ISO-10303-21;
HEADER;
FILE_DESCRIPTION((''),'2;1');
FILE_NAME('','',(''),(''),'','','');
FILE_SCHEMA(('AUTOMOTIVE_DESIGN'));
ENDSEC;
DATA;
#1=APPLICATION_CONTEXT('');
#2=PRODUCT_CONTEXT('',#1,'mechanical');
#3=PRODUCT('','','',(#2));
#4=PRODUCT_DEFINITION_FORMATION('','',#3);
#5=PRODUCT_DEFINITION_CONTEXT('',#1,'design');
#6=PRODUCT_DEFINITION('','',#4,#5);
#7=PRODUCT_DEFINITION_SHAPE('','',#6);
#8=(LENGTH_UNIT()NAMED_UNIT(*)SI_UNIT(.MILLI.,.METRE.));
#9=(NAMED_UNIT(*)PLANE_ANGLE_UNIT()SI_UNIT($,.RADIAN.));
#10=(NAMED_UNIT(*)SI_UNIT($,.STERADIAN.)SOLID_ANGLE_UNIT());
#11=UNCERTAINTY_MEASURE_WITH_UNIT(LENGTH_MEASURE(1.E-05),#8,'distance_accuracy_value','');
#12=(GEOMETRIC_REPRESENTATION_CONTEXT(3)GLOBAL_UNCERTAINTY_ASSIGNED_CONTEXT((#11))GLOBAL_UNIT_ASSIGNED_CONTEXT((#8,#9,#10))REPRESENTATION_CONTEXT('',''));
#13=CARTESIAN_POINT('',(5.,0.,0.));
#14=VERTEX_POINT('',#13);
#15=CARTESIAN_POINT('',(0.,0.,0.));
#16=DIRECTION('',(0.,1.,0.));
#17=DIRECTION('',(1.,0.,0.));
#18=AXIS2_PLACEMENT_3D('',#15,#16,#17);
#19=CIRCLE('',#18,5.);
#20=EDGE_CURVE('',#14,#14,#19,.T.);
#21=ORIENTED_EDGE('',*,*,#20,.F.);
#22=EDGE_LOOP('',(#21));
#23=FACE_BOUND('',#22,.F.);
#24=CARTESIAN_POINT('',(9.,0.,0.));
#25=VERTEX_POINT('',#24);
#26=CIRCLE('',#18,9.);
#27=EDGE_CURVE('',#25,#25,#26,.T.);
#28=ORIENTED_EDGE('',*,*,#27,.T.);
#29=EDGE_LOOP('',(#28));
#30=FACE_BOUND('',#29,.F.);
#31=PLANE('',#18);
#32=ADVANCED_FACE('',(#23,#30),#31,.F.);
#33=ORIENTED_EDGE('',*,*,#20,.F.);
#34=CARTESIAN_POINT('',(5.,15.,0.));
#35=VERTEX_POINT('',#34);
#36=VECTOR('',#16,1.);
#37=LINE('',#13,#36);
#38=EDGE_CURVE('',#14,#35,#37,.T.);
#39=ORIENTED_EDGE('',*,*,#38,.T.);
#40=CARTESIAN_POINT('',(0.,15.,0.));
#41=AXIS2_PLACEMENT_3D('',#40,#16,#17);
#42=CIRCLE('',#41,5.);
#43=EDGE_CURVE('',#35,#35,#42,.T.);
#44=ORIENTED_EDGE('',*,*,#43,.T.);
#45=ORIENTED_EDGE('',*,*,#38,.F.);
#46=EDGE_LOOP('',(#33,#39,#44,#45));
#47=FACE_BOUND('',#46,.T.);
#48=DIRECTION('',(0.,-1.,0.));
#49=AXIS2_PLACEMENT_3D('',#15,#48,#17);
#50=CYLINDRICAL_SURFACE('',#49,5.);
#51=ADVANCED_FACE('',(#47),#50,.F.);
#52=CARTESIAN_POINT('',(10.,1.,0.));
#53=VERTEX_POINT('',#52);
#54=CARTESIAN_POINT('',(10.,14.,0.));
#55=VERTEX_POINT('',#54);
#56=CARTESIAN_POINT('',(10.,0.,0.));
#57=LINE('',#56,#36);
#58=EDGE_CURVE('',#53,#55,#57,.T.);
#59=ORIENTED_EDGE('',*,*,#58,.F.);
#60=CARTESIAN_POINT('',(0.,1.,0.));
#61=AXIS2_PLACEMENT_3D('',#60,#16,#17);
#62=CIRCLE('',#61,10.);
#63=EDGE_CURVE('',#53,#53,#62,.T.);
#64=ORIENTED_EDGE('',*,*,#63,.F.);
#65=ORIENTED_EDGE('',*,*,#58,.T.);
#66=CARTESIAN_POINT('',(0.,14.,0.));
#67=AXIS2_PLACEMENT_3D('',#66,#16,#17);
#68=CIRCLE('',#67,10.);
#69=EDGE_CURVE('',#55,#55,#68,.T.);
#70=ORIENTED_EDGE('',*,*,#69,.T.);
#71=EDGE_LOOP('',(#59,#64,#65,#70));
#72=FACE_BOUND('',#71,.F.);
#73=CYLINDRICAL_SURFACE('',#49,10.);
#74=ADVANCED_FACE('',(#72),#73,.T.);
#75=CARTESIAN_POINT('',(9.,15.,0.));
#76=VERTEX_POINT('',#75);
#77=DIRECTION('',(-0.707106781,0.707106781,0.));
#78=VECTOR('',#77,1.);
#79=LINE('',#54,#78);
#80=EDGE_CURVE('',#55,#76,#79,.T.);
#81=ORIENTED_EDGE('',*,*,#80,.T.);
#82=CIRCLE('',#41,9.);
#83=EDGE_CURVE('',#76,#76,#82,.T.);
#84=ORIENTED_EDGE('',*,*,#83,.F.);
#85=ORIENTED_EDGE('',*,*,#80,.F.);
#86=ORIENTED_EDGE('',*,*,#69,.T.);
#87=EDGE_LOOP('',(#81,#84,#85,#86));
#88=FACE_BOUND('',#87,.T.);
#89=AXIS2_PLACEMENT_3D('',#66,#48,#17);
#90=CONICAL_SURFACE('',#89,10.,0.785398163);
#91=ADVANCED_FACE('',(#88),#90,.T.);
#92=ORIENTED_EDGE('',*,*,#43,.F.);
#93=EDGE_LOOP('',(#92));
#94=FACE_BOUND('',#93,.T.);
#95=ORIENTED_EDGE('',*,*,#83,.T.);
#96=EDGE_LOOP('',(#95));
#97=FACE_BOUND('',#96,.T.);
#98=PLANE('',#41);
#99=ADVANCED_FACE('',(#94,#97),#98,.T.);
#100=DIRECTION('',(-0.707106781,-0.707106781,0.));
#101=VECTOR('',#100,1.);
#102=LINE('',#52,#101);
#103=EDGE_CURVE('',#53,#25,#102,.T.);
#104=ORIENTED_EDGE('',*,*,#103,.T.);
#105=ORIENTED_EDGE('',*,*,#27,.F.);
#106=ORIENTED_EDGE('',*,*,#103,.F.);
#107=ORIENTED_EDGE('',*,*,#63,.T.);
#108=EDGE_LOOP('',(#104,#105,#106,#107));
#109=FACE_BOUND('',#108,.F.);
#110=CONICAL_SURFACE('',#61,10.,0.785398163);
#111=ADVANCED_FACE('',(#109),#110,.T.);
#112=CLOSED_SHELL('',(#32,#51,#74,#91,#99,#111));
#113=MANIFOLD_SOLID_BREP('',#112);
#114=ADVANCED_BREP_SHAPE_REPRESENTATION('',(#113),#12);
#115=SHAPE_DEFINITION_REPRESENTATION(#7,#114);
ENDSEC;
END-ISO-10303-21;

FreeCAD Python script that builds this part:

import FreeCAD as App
import Part
import Sketcher


def edges_at(feature, points):
    """Names of the edges that pass closest to the given points."""
    edges = feature.Shape.Edges
    near = lambda p: min(range(len(edges)), key=lambda i: edges[i].distToShape(Part.Vertex(*p))[0])
    return sorted({f"Edge{near(p) + 1}" for p in points})

doc = App.newDocument("Part")
body = doc.addObject("PartDesign::Body", "Body")

sketch1 = body.newObject("Sketcher::SketchObject", "Sketch")
sketch1.AttachmentSupport = (doc.getObject("XZ_Plane"), [""])
sketch1.MapMode = "FlatFace"
sketch1.addGeometry(Part.Circle(App.Vector(0, 0, 0), App.Vector(0, 0, 1), 10), False)
sketch1.addGeometry(Part.Circle(App.Vector(0, 0, 0), App.Vector(0, 0, 1), 5), False)
sketch1.addConstraint(Sketcher.Constraint("Coincident", 0, 3, -1, 1))
sketch1.addConstraint(Sketcher.Constraint("Coincident", 1, 3, -1, 1))
sketch1.addConstraint(Sketcher.Constraint("Diameter", 0, 20.0))
sketch1.addConstraint(Sketcher.Constraint("Diameter", 1, 10.0))
pad1 = body.newObject("PartDesign::Pad", "Pad")
pad1.Profile = sketch1
pad1.Length = 15
pad1.Reversed = True
doc.recompute()

chamfer = body.newObject("PartDesign::Chamfer", "Chamfer")
chamfer.Base = (pad1, edges_at(pad1, [(-10, 0, 0), (-10, 15, 0)]))
chamfer.Size = 1

doc.recompute()
